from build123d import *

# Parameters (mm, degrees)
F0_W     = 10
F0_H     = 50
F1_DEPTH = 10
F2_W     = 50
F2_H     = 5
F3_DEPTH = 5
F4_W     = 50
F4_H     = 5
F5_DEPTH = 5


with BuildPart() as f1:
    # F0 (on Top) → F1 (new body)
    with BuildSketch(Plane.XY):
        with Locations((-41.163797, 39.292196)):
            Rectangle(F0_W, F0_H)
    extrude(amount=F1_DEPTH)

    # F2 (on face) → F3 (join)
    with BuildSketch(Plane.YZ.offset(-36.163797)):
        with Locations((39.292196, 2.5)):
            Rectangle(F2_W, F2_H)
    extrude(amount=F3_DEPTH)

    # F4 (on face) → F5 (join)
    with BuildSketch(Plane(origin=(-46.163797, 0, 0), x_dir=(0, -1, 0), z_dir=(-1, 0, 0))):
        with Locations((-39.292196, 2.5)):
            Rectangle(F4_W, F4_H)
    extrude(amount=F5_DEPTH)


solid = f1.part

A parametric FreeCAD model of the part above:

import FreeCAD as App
import Part
import Sketcher

V = App.Vector
Q = App.Units.Quantity

doc = App.newDocument("Part")
body = doc.addObject("PartDesign::Body", "Body")

# Sketch on XY plane
sketch1 = doc.addObject("Sketcher::SketchObject", "Sketch")
body.addObject(sketch1)
sketch1.AttachmentSupport = (doc.XY_Plane, [""])
sketch1.MapMode = "FlatFace"
sketch1.addGeometry([
    Part.LineSegment(V(-46.163797, 64.292196, 0), V(-46.163797, 14.292196, 0)),
    Part.LineSegment(V(-46.163797, 14.292196, 0), V(-36.163797, 14.292196, 0)),
    Part.LineSegment(V(-36.163797, 14.292196, 0), V(-36.163797, 64.292196, 0)),
    Part.LineSegment(V(-36.163797, 64.292196, 0), V(-46.163797, 64.292196, 0)),
], False)
sketch1.addConstraint([
    Sketcher.Constraint("Coincident", 0, 2, 1, 1),
    Sketcher.Constraint("Coincident", 1, 2, 2, 1),
    Sketcher.Constraint("Coincident", 2, 2, 3, 1),
    Sketcher.Constraint("Coincident", 3, 2, 0, 1),
    Sketcher.Constraint("Vertical", 0),
    Sketcher.Constraint("Horizontal", 1),
    Sketcher.Constraint("Vertical", 2),
    Sketcher.Constraint("Horizontal", 3),
    Sketcher.Constraint("DistanceX", 1, 1, 1, 2, Q("10 mm")),
    Sketcher.Constraint("DistanceY", 0, 2, 0, 1, Q("50 mm")),
    Sketcher.Constraint("DistanceX", 0, 2, -1, 1, Q("46.163797 mm")),
    Sketcher.Constraint("DistanceY", -1, 1, 0, 2, Q("14.292196 mm")),
])
pad1 = doc.addObject("PartDesign::Pad", "Pad")
body.addObject(pad1)
pad1.Profile = sketch1
pad1.Length = 10

# Sketch on YZ plane
sketch2 = doc.addObject("Sketcher::SketchObject", "Sketch001")
body.addObject(sketch2)
sketch2.AttachmentSupport = (doc.YZ_Plane, [""])
sketch2.MapMode = "FlatFace"
sketch2.AttachmentOffset = App.Placement(V(0, 0, -36.163797), App.Rotation())
sketch2.addGeometry([
    Part.LineSegment(V(14.292196, 5, 0), V(14.292196, 0, 0)),
    Part.LineSegment(V(14.292196, 0, 0), V(64.292196, 0, 0)),
    Part.LineSegment(V(64.292196, 0, 0), V(64.292196, 5, 0)),
    Part.LineSegment(V(64.292196, 5, 0), V(14.292196, 5, 0)),
], False)
sketch2.addConstraint([
    Sketcher.Constraint("Coincident", 0, 2, 1, 1),
    Sketcher.Constraint("Coincident", 1, 2, 2, 1),
    Sketcher.Constraint("Coincident", 2, 2, 3, 1),
    Sketcher.Constraint("Coincident", 3, 2, 0, 1),
    Sketcher.Constraint("Vertical", 0),
    Sketcher.Constraint("Horizontal", 1),
    Sketcher.Constraint("Vertical", 2),
    Sketcher.Constraint("Horizontal", 3),
    Sketcher.Constraint("PointOnObject", 0, 2, -1),
    Sketcher.Constraint("DistanceX", 1, 1, 1, 2, Q("50 mm")),
    Sketcher.Constraint("DistanceY", 0, 2, 0, 1, Q("5 mm")),
    Sketcher.Constraint("DistanceX", -1, 1, 0, 2, Q("14.292196 mm")),
])
pad2 = doc.addObject("PartDesign::Pad", "Pad001")
body.addObject(pad2)
pad2.Profile = sketch2
pad2.Length = 5

# Sketch on YZ plane
sketch3 = doc.addObject("Sketcher::SketchObject", "Sketch002")
body.addObject(sketch3)
sketch3.AttachmentSupport = (doc.YZ_Plane, [""])
sketch3.MapMode = "FlatFace"
sketch3.AttachmentOffset = App.Placement(V(0, 0, -46.163797), App.Rotation())
sketch3.addGeometry([
    Part.LineSegment(V(64.292196, 5, 0), V(64.292196, 0, 0)),
    Part.LineSegment(V(64.292196, 0, 0), V(14.292196, 0, 0)),
    Part.LineSegment(V(14.292196, 0, 0), V(14.292196, 5, 0)),
    Part.LineSegment(V(14.292196, 5, 0), V(64.292196, 5, 0)),
], False)
sketch3.addConstraint([
    Sketcher.Constraint("Coincident", 0, 2, 1, 1),
    Sketcher.Constraint("Coincident", 1, 2, 2, 1),
    Sketcher.Constraint("Coincident", 2, 2, 3, 1),
    Sketcher.Constraint("Coincident", 3, 2, 0, 1),
    Sketcher.Constraint("Vertical", 0),
    Sketcher.Constraint("Horizontal", 1),
    Sketcher.Constraint("Vertical", 2),
    Sketcher.Constraint("Horizontal", 3),
    Sketcher.Constraint("PointOnObject", 0, 2, -1),
    Sketcher.Constraint("DistanceX", 1, 2, 1, 1, Q("50 mm")),
    Sketcher.Constraint("DistanceY", 0, 2, 0, 1, Q("5 mm")),
    Sketcher.Constraint("DistanceX", -1, 1, 0, 2, Q("64.292196 mm")),
])
pad3 = doc.addObject("PartDesign::Pad", "Pad002")
body.addObject(pad3)
pad3.Profile = sketch3
pad3.Length = 5
pad3.Reversed = True

doc.recompute()
